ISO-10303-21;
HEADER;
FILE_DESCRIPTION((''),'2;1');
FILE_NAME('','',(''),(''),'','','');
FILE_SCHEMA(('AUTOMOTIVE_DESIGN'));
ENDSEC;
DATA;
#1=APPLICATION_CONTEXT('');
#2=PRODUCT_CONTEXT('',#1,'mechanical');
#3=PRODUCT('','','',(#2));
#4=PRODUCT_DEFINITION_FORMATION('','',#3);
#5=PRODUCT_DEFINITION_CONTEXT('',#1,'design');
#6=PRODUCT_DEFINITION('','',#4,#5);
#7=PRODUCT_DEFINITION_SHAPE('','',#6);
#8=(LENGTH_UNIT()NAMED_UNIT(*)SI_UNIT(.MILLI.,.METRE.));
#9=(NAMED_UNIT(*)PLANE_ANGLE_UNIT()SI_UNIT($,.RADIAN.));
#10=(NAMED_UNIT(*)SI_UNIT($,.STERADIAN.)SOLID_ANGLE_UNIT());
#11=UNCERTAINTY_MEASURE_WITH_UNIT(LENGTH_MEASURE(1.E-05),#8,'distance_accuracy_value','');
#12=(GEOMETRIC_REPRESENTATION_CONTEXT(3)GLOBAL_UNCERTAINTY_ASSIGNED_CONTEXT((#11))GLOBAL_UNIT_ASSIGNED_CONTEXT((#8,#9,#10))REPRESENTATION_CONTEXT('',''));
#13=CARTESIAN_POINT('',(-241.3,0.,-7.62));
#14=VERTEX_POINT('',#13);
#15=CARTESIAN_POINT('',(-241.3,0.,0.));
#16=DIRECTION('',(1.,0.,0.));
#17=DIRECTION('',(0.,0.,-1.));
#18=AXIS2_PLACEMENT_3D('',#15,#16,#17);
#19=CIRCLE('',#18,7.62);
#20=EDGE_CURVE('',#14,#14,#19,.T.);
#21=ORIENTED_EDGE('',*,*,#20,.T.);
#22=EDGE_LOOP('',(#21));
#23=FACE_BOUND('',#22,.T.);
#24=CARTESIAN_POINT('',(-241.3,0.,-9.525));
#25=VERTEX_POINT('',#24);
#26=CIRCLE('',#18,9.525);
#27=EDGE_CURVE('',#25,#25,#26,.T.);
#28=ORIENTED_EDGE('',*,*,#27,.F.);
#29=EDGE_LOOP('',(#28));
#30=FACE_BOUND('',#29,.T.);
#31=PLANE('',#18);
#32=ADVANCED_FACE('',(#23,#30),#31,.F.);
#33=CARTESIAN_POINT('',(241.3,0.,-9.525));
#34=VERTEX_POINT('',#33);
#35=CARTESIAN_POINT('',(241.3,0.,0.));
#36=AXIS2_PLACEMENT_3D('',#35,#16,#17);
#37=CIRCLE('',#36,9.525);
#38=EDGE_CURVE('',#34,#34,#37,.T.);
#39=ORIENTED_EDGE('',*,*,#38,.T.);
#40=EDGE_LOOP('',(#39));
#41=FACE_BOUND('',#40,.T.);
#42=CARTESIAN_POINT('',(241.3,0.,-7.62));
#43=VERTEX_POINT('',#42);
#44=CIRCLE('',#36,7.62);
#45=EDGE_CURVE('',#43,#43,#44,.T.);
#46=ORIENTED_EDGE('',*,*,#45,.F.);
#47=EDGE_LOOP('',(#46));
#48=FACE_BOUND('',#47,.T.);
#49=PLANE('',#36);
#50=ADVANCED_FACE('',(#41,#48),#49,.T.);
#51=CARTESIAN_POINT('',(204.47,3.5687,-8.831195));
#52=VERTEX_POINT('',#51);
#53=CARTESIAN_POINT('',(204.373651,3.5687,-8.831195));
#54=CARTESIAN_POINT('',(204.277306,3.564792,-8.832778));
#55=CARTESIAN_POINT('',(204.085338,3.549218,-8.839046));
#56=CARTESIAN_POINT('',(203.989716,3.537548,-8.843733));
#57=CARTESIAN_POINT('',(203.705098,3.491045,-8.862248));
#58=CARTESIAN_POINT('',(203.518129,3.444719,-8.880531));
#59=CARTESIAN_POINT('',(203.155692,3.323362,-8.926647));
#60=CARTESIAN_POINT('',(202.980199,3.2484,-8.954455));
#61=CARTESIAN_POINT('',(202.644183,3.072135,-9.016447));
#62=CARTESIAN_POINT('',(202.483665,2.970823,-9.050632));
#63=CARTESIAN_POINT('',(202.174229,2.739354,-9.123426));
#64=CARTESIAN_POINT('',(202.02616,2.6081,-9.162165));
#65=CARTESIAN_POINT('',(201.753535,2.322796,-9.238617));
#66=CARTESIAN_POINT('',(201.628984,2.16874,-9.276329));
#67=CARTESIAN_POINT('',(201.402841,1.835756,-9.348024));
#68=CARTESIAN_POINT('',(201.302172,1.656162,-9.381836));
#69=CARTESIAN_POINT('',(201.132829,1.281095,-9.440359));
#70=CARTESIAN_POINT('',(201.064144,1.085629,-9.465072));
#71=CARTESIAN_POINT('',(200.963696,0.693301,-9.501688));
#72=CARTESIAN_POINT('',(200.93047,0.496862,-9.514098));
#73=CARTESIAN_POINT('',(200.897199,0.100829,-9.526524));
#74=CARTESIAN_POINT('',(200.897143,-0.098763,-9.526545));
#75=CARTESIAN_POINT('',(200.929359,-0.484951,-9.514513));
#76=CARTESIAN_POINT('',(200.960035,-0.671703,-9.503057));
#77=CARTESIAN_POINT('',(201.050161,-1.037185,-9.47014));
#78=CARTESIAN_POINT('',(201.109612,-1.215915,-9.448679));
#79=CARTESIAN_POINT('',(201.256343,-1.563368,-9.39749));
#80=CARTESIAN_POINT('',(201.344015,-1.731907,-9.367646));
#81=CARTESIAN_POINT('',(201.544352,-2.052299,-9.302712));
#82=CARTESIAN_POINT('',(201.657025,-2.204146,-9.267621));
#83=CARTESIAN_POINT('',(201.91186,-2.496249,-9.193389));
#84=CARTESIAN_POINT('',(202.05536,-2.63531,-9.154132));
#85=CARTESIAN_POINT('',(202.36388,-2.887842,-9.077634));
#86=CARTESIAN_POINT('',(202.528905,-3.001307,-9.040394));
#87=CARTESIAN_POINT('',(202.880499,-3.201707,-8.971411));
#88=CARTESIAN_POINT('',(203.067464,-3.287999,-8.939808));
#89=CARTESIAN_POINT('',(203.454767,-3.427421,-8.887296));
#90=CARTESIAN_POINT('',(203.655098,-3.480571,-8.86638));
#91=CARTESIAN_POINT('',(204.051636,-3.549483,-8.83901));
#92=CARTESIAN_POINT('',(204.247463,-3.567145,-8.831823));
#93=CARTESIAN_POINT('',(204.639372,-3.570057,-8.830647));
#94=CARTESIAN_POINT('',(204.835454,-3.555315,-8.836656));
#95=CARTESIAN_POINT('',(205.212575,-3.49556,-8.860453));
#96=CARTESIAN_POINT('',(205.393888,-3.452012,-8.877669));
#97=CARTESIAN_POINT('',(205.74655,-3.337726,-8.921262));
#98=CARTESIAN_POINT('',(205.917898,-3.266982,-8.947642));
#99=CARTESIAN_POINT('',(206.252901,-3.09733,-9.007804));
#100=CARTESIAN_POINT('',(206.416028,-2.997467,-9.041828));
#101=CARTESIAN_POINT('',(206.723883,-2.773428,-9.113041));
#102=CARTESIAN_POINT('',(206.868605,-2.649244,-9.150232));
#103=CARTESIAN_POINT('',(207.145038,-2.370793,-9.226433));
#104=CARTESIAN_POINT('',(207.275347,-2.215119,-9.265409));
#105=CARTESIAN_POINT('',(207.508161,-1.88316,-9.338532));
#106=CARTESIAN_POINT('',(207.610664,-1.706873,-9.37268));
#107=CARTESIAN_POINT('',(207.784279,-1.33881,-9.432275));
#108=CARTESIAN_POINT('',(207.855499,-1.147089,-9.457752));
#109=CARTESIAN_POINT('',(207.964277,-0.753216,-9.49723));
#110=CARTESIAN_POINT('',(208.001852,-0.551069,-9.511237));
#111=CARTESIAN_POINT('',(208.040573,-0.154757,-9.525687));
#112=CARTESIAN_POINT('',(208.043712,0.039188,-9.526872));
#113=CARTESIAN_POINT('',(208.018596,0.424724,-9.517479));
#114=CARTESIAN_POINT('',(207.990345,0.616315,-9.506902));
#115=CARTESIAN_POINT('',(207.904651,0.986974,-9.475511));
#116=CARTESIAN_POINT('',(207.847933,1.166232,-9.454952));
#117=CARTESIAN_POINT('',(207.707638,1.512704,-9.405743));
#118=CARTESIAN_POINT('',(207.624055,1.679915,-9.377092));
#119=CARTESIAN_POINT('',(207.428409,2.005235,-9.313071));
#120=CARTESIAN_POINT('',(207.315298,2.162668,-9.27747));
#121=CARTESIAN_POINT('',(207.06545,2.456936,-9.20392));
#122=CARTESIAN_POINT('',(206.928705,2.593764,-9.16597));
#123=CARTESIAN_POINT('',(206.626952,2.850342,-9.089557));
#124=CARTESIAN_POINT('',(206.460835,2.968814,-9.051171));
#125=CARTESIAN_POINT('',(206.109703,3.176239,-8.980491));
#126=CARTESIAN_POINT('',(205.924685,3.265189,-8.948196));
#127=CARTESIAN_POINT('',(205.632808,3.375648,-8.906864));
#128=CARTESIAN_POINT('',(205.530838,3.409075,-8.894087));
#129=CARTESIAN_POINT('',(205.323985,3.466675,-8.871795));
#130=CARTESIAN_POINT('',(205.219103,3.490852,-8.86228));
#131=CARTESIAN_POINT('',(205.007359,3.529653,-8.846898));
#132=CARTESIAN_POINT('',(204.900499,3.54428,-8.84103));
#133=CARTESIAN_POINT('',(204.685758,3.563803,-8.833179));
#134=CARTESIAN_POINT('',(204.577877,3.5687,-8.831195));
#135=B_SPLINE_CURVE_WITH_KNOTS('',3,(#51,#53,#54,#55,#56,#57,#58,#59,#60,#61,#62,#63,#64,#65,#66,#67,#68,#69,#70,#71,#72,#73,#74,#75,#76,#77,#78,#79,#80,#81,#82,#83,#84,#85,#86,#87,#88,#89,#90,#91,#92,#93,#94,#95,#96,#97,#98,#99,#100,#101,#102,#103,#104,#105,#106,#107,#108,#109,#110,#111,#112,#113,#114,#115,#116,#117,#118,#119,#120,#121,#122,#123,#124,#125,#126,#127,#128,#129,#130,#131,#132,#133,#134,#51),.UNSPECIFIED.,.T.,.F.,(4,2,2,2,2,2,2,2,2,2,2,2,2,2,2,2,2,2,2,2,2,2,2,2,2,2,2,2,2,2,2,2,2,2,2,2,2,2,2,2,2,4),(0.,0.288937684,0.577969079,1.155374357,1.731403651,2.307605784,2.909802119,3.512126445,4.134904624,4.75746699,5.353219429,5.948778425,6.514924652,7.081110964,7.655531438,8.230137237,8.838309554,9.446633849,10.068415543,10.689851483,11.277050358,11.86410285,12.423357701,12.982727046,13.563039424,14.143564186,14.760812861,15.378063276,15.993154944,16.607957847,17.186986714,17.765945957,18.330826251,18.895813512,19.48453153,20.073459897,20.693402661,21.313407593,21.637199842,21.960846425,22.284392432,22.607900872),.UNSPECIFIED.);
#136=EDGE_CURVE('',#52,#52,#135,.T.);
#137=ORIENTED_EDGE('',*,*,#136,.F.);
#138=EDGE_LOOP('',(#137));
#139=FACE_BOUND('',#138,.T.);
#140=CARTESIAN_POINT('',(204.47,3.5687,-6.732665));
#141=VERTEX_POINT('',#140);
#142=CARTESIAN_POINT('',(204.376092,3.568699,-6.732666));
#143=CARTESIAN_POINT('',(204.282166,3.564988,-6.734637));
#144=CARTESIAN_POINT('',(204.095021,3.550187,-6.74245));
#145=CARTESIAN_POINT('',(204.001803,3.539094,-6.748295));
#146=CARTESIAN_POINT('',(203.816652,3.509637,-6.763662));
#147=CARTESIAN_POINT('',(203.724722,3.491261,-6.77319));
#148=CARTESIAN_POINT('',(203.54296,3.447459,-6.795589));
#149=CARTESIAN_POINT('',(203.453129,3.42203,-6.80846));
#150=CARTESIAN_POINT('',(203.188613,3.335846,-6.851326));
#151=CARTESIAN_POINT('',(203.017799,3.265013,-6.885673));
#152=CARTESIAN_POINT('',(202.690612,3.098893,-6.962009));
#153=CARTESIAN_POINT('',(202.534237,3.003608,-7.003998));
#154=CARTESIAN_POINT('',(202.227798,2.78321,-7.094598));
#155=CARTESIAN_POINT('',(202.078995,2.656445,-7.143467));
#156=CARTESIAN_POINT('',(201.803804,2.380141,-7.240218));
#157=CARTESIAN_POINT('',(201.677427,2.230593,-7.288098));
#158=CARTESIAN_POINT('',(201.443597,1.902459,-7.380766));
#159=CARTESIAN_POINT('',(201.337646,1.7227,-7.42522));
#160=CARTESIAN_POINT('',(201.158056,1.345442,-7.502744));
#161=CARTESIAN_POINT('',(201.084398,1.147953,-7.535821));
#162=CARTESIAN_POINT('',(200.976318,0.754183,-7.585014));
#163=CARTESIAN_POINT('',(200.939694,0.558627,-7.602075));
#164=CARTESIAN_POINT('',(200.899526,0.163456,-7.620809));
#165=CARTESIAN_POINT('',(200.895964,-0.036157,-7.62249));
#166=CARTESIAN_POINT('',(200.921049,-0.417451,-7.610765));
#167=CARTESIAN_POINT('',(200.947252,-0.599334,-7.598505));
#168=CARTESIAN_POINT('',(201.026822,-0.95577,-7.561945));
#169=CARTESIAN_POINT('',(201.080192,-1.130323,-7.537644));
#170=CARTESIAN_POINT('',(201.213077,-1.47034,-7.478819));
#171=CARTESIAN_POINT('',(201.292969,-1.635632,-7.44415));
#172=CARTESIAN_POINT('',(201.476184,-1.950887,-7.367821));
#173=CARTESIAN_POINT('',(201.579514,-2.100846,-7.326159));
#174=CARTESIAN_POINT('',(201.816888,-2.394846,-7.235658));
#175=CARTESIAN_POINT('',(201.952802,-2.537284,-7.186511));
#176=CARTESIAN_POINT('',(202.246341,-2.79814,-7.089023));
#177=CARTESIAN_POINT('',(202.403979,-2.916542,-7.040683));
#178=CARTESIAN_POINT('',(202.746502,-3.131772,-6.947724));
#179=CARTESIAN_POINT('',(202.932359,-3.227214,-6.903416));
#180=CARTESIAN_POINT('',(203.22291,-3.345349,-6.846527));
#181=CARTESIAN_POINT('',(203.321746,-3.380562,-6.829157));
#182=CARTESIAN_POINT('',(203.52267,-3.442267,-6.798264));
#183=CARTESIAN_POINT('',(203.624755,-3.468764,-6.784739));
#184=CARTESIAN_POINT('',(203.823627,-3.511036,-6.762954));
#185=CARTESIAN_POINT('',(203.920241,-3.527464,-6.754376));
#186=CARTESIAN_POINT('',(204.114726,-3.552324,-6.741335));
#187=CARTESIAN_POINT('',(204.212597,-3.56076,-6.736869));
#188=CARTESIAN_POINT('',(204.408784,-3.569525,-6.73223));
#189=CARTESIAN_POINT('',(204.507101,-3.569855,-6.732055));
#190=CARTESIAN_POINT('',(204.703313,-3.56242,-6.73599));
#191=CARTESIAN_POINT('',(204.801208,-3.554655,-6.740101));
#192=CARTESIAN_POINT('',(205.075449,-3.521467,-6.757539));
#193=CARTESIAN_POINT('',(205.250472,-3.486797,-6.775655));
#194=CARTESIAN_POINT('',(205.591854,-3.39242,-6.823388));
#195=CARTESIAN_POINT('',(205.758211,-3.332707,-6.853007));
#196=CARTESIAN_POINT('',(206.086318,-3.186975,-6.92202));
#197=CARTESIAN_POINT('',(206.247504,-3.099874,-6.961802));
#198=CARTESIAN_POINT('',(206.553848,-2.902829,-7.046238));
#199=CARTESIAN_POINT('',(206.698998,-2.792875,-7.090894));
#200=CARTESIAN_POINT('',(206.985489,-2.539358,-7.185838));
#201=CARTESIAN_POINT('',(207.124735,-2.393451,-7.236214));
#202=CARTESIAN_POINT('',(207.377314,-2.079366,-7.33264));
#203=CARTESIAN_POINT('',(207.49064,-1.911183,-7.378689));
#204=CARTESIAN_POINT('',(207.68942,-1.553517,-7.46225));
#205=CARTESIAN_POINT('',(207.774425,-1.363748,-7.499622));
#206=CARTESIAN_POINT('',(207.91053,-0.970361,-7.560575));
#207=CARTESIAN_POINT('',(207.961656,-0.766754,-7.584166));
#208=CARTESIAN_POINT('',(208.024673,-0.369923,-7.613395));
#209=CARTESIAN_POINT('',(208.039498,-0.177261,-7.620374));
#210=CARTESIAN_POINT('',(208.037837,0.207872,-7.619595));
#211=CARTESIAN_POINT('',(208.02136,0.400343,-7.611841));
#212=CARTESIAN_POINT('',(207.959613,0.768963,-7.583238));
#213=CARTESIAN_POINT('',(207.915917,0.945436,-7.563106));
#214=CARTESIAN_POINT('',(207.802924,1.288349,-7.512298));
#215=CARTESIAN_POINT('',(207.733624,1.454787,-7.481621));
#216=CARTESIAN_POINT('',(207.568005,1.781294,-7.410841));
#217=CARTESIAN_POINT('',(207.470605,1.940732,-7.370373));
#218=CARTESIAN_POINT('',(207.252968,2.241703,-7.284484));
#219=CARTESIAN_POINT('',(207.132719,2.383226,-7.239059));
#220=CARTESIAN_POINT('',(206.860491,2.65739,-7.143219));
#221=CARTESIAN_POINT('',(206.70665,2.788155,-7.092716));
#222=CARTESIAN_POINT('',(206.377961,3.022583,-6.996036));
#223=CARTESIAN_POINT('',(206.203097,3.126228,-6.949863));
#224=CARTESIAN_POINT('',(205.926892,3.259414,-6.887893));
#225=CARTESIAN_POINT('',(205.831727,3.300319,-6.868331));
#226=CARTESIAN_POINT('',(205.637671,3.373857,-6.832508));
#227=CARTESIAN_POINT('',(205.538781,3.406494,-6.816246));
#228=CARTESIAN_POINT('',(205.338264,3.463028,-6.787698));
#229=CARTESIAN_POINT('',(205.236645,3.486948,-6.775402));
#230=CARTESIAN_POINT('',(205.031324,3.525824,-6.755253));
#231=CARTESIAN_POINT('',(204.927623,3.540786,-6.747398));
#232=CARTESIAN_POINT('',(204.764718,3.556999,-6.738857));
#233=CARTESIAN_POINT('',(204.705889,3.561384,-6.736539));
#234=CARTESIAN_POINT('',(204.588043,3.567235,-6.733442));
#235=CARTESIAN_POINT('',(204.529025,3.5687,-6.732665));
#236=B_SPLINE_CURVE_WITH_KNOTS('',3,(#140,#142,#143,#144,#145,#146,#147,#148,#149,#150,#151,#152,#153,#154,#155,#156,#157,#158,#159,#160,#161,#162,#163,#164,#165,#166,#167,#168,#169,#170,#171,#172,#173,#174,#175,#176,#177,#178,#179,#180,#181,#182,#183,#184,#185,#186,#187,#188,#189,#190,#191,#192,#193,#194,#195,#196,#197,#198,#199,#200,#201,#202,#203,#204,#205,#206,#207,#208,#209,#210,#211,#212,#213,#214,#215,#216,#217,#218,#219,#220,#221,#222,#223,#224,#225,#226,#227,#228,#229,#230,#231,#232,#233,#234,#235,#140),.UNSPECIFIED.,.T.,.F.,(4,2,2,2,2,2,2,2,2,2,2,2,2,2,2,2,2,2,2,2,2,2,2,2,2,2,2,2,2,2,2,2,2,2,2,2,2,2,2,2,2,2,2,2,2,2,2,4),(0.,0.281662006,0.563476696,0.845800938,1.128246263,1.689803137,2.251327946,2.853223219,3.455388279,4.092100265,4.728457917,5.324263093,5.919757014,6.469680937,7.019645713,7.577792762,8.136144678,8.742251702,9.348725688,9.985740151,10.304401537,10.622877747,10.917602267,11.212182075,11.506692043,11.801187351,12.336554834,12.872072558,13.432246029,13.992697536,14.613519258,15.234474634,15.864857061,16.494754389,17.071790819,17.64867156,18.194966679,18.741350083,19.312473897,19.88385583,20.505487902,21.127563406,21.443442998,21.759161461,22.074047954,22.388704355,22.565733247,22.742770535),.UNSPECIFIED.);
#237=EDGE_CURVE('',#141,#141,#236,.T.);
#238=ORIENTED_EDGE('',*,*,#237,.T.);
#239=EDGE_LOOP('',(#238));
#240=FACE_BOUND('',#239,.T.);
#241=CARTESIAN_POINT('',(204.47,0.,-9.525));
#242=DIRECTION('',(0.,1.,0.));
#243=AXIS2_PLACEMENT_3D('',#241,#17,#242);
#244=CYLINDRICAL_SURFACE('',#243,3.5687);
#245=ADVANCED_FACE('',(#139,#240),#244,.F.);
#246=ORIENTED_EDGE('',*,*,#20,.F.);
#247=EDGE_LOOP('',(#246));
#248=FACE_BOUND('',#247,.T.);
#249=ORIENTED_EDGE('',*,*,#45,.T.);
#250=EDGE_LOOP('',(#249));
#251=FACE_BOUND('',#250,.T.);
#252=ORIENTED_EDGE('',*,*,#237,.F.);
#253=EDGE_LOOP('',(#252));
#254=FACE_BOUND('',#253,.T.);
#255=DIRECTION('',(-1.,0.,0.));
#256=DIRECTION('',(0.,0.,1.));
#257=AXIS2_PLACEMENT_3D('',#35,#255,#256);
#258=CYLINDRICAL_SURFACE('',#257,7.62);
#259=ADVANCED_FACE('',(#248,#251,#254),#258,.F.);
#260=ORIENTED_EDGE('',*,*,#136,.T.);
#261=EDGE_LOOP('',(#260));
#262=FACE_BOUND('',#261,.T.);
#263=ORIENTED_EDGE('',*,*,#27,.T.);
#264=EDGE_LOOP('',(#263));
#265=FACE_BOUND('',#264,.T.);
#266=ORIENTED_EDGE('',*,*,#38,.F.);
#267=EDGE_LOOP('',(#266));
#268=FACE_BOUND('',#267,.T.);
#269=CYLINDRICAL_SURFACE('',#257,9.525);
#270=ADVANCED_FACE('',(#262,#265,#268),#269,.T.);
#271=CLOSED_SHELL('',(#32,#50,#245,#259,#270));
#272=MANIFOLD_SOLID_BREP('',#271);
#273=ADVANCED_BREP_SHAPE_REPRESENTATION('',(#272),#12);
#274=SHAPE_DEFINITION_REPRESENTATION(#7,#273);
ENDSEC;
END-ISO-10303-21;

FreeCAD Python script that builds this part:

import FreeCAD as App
import Part
import Sketcher
from FreeCAD import Vector
Q = App.Units.Quantity

doc = App.newDocument("Part")
body = doc.addObject("PartDesign::Body", "Body")

sketch1 = doc.addObject("Sketcher::SketchObject", "Sketch")
body.addObject(sketch1)
sketch1.AttachmentSupport = (doc.YZ_Plane, [""])
sketch1.MapMode = "FlatFace"
sketch1.addGeometry([
    Part.Circle(Vector(0, 0, 0), Vector(0, 0, 1), 10),
    Part.Circle(Vector(0, 0, 0), Vector(0, 0, 1), 8),
], False)
sketch1.addConstraint([
    Sketcher.Constraint("Coincident", 0, 3, -1, 1),
    Sketcher.Constraint("Coincident", 1, 3, -1, 1),
    Sketcher.Constraint("Diameter", 1, Q("0.6 in")),
    Sketcher.Constraint("Diameter", 0, Q("0.75 in")),
])
pad1 = doc.addObject("PartDesign::Pad", "Pad")
body.addObject(pad1)
pad1.Profile = sketch1
pad1.Length = Q("19 in")
pad1.Midplane = True

sketch2 = doc.addObject("Sketcher::SketchObject", "Sketch001")
body.addObject(sketch2)
sketch2.AttachmentSupport = (doc.XY_Plane, [""])
sketch2.MapMode = "FlatFace"
sketch2.AttachmentOffset = App.Placement(Vector(0, 0, -0.375 * 25.4), App.Rotation())
sketch2.addGeometry(Part.Circle(Vector(204.5, 0, 0), Vector(0, 0, 1), 3.6), False)
sketch2.addConstraint([
    Sketcher.Constraint("PointOnObject", 0, 3, -1),
    Sketcher.Constraint("Diameter", 0, Q("0.281 in")),
    Sketcher.Constraint("DistanceX", -1, 1, 0, 3, Q("8.05 in")),
])
doc.recompute()
hole = doc.addObject("PartDesign::Hole", "Hole")
body.addObject(hole)
hole.Profile = sketch2
hole.ThreadType = "None"
hole.Diameter = Q("0.281 in")
hole.DepthType = "Dimension"
hole.Depth = 9.524
hole.DrillPoint = "Angled"
hole.DrillPointAngle = 118
hole.Reversed = True

doc.recompute()
